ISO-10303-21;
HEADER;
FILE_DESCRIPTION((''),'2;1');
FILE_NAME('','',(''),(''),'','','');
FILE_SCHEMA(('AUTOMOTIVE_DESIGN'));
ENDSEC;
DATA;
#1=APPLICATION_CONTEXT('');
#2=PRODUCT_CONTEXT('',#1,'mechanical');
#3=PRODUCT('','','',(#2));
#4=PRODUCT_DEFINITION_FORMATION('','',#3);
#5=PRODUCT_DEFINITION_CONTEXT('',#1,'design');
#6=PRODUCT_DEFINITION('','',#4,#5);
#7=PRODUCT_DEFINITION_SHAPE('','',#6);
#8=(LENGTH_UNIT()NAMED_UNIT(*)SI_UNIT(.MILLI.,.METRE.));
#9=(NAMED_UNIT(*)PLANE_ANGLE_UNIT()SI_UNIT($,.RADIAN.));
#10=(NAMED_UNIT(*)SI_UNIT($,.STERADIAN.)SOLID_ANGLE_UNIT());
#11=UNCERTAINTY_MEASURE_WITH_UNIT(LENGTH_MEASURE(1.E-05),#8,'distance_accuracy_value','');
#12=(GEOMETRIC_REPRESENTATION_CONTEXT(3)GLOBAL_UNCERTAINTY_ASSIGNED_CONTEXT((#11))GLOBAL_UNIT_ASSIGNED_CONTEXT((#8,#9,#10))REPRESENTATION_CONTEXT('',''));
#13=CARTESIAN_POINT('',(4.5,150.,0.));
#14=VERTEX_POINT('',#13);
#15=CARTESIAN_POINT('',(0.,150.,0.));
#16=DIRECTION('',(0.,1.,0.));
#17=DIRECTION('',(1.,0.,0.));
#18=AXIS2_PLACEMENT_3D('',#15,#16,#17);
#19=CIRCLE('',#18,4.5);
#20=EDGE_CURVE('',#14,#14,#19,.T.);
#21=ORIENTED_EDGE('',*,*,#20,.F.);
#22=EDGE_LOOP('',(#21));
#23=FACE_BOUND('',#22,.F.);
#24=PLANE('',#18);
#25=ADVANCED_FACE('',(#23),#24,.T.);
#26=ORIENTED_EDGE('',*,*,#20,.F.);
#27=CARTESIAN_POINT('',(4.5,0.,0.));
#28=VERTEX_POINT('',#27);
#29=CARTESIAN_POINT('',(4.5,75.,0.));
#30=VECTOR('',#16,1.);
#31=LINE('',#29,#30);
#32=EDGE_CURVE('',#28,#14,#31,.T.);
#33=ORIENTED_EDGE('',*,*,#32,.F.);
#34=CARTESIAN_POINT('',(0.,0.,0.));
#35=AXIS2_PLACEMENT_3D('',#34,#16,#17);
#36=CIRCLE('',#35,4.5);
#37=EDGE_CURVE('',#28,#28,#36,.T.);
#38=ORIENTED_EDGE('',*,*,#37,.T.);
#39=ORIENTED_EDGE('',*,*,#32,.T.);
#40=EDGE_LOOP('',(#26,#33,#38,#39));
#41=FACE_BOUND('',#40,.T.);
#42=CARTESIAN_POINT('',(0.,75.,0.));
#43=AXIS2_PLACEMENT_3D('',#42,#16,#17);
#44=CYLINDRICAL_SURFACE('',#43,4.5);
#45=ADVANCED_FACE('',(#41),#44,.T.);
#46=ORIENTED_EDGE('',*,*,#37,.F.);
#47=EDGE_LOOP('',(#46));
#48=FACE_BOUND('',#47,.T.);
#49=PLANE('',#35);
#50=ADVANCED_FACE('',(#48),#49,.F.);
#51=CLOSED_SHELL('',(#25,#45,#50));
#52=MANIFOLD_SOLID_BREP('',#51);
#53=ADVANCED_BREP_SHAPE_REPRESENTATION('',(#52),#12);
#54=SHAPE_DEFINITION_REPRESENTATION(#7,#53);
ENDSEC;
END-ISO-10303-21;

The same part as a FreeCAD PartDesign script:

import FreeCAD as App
import Part
import Sketcher

V = App.Vector
Q = App.Units.Quantity

doc = App.newDocument("Part")
body = doc.addObject("PartDesign::Body", "Body")

# Sketch on XY plane
sketch1 = doc.addObject("Sketcher::SketchObject", "Sketch")
body.addObject(sketch1)
sketch1.AttachmentSupport = (doc.XY_Plane, [""])
sketch1.MapMode = "FlatFace"
sketch1.addGeometry(Part.LineSegment(V(0, 150, 0), V(0, 0, 0)), False)
sketch1.addGeometry(Part.LineSegment(V(0, 0, 0), V(4.5, 0, 0)), False)
sketch1.addGeometry(Part.LineSegment(V(4.5, 0, 0), V(4.5, 150, 0)), False)
sketch1.addGeometry(Part.LineSegment(V(4.5, 150, 0), V(0, 150, 0)), False)
sketch1.addConstraint(Sketcher.Constraint("Coincident", 0, 2, 1, 1))
sketch1.addConstraint(Sketcher.Constraint("Coincident", 1, 2, 2, 1))
sketch1.addConstraint(Sketcher.Constraint("Coincident", 2, 2, 3, 1))
sketch1.addConstraint(Sketcher.Constraint("Coincident", 3, 2, 0, 1))
sketch1.addConstraint(Sketcher.Constraint("Vertical", 0))
sketch1.addConstraint(Sketcher.Constraint("Horizontal", 1))
sketch1.addConstraint(Sketcher.Constraint("Vertical", 2))
sketch1.addConstraint(Sketcher.Constraint("Horizontal", 3))
sketch1.addConstraint(Sketcher.Constraint("Coincident", 0, 2, -1, 1))
sketch1.addConstraint(Sketcher.Constraint("DistanceY", 0, 2, 0, 1, Q("150 mm")))
sketch1.addConstraint(Sketcher.Constraint("DistanceX", 1, 1, 1, 2, Q("4.5 mm")))
revolution = doc.addObject("PartDesign::Revolution", "Revolution")
body.addObject(revolution)
revolution.Profile = sketch1
revolution.ReferenceAxis = (sketch1, ["V_Axis"])
revolution.Angle = 360

doc.recompute()
